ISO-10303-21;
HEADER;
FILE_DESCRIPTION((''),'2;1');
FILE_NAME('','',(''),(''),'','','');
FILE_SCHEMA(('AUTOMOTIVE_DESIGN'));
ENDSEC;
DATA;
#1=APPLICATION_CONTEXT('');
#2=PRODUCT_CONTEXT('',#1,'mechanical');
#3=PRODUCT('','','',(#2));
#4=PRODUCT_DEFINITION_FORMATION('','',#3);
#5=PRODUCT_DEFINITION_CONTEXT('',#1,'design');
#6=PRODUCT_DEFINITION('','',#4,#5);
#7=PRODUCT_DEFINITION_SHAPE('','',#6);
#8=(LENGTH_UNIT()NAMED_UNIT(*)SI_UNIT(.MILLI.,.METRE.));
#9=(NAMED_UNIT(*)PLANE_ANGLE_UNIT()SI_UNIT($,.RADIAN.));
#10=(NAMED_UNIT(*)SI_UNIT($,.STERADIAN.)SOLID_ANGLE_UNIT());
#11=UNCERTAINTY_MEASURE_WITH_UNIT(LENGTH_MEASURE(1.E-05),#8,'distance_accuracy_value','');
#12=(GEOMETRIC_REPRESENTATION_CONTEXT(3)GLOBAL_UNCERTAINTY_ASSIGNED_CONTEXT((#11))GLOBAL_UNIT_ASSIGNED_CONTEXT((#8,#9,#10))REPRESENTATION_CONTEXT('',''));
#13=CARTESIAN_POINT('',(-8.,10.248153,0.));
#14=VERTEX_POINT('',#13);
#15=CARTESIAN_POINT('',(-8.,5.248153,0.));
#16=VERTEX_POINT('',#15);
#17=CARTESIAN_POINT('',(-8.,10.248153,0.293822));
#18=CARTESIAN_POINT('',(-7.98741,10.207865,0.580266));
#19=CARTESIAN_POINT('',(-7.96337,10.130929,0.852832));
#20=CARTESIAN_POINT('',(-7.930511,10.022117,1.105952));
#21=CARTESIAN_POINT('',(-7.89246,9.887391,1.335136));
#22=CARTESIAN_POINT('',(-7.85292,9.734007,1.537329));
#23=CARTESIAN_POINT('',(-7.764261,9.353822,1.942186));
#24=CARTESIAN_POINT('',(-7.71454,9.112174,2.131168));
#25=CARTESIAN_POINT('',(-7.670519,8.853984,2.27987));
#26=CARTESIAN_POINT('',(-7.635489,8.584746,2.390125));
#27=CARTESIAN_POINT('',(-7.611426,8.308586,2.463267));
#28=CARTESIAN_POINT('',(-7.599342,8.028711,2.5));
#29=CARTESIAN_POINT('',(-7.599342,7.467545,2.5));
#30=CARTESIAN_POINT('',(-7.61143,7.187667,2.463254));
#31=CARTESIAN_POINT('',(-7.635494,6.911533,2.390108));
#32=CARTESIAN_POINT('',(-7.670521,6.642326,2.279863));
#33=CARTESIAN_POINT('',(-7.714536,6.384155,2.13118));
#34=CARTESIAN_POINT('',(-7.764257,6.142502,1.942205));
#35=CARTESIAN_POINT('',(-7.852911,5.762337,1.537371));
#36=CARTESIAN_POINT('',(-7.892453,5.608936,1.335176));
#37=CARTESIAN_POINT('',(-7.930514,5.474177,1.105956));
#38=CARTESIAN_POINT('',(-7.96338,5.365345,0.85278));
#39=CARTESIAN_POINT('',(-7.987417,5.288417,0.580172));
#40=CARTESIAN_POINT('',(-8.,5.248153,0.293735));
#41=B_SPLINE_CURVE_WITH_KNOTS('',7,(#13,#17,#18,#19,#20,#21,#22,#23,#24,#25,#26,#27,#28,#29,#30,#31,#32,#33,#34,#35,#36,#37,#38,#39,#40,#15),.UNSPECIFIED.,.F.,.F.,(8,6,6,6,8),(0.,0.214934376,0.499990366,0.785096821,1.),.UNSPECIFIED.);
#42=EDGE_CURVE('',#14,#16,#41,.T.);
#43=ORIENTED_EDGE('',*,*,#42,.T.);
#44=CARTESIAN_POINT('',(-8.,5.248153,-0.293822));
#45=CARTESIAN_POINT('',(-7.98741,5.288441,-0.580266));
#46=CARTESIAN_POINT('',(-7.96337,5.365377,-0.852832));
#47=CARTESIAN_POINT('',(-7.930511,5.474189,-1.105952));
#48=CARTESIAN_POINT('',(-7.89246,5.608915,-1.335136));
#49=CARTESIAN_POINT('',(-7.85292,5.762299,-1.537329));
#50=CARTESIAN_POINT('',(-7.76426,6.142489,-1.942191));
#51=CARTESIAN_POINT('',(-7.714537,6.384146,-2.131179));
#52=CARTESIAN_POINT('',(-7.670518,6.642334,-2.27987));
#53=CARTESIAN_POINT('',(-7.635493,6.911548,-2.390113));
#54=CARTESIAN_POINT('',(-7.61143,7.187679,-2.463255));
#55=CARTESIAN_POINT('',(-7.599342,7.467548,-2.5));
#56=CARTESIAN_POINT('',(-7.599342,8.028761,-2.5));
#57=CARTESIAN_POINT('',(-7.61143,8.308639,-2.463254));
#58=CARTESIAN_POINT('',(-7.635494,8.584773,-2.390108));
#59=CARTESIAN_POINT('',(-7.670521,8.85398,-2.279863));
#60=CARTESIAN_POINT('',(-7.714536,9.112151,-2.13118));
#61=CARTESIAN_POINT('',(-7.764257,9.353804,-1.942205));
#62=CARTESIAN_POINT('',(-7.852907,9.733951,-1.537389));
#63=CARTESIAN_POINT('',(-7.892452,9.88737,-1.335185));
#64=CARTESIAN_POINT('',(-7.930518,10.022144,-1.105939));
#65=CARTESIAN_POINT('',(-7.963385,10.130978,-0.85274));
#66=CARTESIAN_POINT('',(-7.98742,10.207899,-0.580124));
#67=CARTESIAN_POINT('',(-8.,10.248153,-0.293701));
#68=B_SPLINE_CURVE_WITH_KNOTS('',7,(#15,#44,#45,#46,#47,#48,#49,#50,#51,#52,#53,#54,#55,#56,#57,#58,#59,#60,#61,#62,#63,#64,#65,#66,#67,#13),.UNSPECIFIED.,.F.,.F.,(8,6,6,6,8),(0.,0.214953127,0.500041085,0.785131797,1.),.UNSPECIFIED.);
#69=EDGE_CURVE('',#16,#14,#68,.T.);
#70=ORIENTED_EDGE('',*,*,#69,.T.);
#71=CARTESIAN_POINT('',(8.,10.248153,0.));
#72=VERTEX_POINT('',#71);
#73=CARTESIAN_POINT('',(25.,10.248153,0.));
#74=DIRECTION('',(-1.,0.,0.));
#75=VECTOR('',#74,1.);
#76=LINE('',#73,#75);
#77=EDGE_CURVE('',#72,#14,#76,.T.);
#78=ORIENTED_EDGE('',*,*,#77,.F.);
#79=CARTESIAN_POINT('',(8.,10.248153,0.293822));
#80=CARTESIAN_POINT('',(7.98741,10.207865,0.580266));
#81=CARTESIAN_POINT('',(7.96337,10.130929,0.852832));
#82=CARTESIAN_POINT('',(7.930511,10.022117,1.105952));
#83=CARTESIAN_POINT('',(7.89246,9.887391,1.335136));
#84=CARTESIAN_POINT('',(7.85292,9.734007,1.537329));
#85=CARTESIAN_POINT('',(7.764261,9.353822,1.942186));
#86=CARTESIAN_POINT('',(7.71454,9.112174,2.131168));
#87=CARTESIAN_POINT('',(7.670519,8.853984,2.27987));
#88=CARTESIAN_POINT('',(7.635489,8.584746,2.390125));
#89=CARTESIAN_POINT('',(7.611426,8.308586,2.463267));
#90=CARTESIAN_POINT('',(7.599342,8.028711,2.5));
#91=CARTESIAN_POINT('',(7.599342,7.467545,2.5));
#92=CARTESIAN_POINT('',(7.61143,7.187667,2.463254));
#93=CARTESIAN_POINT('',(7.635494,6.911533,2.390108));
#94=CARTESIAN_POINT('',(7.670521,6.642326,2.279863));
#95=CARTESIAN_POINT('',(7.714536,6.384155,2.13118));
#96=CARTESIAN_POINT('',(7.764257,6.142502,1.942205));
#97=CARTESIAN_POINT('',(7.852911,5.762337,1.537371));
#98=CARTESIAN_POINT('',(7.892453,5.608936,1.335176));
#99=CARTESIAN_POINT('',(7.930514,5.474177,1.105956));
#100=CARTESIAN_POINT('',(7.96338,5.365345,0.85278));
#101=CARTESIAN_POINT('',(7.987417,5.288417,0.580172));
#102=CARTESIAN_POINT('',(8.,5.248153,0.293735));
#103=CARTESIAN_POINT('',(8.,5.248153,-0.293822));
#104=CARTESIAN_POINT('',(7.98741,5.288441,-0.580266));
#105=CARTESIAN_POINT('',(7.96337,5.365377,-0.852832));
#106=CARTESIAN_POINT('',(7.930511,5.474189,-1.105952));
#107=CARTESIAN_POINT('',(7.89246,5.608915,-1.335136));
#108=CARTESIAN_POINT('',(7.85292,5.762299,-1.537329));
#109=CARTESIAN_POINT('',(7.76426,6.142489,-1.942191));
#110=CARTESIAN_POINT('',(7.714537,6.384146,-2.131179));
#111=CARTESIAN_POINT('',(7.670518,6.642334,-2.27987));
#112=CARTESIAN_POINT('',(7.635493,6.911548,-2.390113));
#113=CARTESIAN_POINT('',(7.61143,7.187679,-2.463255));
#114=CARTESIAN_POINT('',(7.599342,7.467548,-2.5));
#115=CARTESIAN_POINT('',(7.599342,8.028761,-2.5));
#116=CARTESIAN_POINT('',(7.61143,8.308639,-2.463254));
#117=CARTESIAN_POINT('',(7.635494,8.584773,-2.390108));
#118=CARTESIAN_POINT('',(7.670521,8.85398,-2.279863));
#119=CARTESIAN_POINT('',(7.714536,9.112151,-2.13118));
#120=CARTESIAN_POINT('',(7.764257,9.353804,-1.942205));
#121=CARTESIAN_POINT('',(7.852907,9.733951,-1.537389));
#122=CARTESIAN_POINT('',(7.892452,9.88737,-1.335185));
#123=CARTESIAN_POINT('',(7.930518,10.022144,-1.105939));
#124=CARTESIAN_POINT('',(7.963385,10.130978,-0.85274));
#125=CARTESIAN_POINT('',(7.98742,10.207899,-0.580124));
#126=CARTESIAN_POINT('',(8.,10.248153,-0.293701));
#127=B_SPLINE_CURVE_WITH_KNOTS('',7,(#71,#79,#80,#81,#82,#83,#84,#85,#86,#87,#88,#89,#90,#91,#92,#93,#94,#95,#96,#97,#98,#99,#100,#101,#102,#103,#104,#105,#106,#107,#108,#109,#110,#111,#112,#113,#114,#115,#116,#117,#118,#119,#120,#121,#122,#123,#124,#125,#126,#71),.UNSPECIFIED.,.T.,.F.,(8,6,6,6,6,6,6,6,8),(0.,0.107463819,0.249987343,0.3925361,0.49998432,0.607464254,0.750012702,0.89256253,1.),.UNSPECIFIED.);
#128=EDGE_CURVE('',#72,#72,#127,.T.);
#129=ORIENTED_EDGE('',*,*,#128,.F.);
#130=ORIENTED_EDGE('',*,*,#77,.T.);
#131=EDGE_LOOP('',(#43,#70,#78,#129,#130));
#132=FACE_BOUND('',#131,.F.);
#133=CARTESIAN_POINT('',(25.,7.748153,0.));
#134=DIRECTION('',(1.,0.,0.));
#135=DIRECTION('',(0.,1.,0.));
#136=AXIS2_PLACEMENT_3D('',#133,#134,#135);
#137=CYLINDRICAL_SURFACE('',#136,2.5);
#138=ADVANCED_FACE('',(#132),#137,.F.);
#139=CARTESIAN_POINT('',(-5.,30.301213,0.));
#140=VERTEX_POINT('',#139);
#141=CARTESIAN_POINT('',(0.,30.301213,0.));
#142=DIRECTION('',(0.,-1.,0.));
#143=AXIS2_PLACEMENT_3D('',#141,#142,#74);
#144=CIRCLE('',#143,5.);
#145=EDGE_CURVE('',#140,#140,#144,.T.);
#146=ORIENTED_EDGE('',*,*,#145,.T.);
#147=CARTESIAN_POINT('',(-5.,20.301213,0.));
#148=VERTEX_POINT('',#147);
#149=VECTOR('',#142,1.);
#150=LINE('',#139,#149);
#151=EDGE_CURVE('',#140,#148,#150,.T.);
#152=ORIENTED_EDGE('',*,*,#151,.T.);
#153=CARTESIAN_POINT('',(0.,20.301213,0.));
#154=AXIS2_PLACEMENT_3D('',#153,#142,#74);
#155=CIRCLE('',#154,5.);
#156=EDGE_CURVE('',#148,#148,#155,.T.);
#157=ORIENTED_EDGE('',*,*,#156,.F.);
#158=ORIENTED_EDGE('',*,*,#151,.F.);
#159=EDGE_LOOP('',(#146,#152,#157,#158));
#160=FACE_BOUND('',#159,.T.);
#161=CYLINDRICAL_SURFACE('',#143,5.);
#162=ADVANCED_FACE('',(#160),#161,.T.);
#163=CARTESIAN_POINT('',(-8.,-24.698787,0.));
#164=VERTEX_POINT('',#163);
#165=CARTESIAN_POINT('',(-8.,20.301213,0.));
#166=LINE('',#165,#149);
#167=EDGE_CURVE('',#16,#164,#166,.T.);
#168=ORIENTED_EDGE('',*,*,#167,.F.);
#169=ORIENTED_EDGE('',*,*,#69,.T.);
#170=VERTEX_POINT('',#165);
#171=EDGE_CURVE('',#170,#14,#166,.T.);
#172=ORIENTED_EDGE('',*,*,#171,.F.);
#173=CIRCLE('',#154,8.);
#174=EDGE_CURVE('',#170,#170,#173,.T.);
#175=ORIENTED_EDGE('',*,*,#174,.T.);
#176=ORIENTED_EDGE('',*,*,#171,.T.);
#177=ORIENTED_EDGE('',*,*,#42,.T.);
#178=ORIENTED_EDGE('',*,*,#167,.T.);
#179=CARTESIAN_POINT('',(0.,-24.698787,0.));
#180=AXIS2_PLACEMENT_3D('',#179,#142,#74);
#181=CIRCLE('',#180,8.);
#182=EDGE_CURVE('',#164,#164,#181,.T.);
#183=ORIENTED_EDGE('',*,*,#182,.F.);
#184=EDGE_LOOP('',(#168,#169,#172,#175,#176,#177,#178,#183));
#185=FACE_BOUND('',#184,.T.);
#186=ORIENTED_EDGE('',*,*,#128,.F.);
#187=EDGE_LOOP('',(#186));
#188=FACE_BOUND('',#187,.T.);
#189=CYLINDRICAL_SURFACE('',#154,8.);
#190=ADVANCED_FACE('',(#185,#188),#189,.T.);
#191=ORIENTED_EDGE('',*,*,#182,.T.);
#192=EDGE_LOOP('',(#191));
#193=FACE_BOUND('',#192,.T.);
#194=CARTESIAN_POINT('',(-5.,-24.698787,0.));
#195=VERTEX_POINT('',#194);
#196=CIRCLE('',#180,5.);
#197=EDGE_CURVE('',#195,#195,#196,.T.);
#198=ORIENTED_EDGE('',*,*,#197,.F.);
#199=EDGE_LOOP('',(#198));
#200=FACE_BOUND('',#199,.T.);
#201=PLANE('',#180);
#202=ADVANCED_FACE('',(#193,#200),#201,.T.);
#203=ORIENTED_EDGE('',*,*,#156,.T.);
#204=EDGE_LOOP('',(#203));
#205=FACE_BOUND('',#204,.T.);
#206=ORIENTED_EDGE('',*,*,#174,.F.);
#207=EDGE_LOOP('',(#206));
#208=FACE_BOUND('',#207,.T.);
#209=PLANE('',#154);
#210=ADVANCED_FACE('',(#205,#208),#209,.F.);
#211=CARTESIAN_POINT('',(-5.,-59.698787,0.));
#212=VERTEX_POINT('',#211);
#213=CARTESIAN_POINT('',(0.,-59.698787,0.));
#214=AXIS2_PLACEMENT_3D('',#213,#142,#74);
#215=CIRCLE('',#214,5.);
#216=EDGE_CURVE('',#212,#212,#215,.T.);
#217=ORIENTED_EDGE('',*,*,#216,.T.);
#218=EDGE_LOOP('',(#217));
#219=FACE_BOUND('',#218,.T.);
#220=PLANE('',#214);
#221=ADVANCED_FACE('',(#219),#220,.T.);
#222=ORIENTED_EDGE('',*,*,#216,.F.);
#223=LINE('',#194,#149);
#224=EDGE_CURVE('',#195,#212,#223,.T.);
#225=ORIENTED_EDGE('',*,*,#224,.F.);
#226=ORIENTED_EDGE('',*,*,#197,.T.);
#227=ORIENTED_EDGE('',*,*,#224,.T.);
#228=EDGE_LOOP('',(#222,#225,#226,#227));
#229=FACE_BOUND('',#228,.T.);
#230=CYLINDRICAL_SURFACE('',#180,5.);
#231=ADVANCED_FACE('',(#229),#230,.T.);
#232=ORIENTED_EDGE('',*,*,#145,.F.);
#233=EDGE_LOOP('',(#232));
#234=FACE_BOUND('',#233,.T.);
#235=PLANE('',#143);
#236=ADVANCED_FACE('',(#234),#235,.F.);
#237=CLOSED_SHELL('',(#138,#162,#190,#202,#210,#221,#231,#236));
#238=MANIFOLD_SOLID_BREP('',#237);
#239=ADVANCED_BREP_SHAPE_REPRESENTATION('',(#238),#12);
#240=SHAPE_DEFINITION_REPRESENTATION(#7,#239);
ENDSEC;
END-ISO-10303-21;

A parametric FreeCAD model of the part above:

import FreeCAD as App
import Part
import Sketcher
from FreeCAD import Vector


def add_polygon(sketch, points):
    """Adds a closed chain of lines whose ends are joined by coincident constraints."""
    first, n = sketch.GeometryCount, len(points)
    for a, b in zip(points, points[1:] + points[:1]):
        sketch.addGeometry(Part.LineSegment(App.Vector(*a, 0), App.Vector(*b, 0)), False)
    for i in range(n):
        sketch.addConstraint(Sketcher.Constraint("Coincident", first + i, 2, first + (i + 1) % n, 1))

doc = App.newDocument("Part")
body = doc.addObject("PartDesign::Body", "Body")

# Sketch on XY plane
sketch1 = body.newObject("Sketcher::SketchObject", "Sketch")
sketch1.AttachmentSupport = (doc.getObject("XY_Plane"), [""])
sketch1.MapMode = "FlatFace"
add_polygon(sketch1, [(0, -59.7), (0, 30.3), (-5, 30.3), (-5, 20.3), (-8, 20.3), (-8, -24.7), (-5, -24.7), (-5, -59.7)])  # lines 0-7
sketch1.addConstraint([
    Sketcher.Constraint("Vertical", 0),
    Sketcher.Constraint("Horizontal", 1),
    Sketcher.Constraint("Vertical", 2),
    Sketcher.Constraint("Horizontal", 3),
    Sketcher.Constraint("Vertical", 4),
    Sketcher.Constraint("Horizontal", 5),
    Sketcher.Constraint("Vertical", 6),
    Sketcher.Constraint("Horizontal", 7),
    Sketcher.Constraint("PointOnObject", 0, 2, -2),
    Sketcher.Constraint("Vertical", 2, 2, 5, 2),
    Sketcher.Constraint("DistanceX", 1, 2, 1, 1, 5.0),
    Sketcher.Constraint("DistanceX", 3, 2, 3, 1, 3.0),
    Sketcher.Constraint("DistanceY", 0, 1, 0, 2, 90.0),
    Sketcher.Constraint("DistanceY", 2, 2, 2, 1, 10.0),
    Sketcher.Constraint("DistanceY", 4, 2, 4, 1, 45.0),
    Sketcher.Constraint("DistanceY", -1, 1, 0, 2, 30.301213),
])
revolution = body.newObject("PartDesign::Revolution", "Revolution")
revolution.Profile = sketch1
revolution.ReferenceAxis = (sketch1, ["V_Axis"])
revolution.Angle = 360

# Sketch on YZ plane
sketch2 = body.newObject("Sketcher::SketchObject", "Sketch001")
sketch2.AttachmentSupport = (doc.getObject("YZ_Plane"), [""])
sketch2.MapMode = "FlatFace"
sketch2.AttachmentOffset = App.Placement(Vector(0, 0, 25), App.Rotation())
sketch2.addGeometry(Part.Circle(Vector(7.7, 0, 0), Vector(0, 0, 1), 2.5), False)
sketch2.addConstraint([
    Sketcher.Constraint("PointOnObject", 0, 3, -1),
    Sketcher.Constraint("Diameter", 0, 5.0),
    Sketcher.Constraint("DistanceX", -1, 1, 0, 3, 7.748153),
])
pocket1 = body.newObject("PartDesign::Pocket", "Pocket")
pocket1.Profile = sketch2
pocket1.Length = 45

doc.recompute()
